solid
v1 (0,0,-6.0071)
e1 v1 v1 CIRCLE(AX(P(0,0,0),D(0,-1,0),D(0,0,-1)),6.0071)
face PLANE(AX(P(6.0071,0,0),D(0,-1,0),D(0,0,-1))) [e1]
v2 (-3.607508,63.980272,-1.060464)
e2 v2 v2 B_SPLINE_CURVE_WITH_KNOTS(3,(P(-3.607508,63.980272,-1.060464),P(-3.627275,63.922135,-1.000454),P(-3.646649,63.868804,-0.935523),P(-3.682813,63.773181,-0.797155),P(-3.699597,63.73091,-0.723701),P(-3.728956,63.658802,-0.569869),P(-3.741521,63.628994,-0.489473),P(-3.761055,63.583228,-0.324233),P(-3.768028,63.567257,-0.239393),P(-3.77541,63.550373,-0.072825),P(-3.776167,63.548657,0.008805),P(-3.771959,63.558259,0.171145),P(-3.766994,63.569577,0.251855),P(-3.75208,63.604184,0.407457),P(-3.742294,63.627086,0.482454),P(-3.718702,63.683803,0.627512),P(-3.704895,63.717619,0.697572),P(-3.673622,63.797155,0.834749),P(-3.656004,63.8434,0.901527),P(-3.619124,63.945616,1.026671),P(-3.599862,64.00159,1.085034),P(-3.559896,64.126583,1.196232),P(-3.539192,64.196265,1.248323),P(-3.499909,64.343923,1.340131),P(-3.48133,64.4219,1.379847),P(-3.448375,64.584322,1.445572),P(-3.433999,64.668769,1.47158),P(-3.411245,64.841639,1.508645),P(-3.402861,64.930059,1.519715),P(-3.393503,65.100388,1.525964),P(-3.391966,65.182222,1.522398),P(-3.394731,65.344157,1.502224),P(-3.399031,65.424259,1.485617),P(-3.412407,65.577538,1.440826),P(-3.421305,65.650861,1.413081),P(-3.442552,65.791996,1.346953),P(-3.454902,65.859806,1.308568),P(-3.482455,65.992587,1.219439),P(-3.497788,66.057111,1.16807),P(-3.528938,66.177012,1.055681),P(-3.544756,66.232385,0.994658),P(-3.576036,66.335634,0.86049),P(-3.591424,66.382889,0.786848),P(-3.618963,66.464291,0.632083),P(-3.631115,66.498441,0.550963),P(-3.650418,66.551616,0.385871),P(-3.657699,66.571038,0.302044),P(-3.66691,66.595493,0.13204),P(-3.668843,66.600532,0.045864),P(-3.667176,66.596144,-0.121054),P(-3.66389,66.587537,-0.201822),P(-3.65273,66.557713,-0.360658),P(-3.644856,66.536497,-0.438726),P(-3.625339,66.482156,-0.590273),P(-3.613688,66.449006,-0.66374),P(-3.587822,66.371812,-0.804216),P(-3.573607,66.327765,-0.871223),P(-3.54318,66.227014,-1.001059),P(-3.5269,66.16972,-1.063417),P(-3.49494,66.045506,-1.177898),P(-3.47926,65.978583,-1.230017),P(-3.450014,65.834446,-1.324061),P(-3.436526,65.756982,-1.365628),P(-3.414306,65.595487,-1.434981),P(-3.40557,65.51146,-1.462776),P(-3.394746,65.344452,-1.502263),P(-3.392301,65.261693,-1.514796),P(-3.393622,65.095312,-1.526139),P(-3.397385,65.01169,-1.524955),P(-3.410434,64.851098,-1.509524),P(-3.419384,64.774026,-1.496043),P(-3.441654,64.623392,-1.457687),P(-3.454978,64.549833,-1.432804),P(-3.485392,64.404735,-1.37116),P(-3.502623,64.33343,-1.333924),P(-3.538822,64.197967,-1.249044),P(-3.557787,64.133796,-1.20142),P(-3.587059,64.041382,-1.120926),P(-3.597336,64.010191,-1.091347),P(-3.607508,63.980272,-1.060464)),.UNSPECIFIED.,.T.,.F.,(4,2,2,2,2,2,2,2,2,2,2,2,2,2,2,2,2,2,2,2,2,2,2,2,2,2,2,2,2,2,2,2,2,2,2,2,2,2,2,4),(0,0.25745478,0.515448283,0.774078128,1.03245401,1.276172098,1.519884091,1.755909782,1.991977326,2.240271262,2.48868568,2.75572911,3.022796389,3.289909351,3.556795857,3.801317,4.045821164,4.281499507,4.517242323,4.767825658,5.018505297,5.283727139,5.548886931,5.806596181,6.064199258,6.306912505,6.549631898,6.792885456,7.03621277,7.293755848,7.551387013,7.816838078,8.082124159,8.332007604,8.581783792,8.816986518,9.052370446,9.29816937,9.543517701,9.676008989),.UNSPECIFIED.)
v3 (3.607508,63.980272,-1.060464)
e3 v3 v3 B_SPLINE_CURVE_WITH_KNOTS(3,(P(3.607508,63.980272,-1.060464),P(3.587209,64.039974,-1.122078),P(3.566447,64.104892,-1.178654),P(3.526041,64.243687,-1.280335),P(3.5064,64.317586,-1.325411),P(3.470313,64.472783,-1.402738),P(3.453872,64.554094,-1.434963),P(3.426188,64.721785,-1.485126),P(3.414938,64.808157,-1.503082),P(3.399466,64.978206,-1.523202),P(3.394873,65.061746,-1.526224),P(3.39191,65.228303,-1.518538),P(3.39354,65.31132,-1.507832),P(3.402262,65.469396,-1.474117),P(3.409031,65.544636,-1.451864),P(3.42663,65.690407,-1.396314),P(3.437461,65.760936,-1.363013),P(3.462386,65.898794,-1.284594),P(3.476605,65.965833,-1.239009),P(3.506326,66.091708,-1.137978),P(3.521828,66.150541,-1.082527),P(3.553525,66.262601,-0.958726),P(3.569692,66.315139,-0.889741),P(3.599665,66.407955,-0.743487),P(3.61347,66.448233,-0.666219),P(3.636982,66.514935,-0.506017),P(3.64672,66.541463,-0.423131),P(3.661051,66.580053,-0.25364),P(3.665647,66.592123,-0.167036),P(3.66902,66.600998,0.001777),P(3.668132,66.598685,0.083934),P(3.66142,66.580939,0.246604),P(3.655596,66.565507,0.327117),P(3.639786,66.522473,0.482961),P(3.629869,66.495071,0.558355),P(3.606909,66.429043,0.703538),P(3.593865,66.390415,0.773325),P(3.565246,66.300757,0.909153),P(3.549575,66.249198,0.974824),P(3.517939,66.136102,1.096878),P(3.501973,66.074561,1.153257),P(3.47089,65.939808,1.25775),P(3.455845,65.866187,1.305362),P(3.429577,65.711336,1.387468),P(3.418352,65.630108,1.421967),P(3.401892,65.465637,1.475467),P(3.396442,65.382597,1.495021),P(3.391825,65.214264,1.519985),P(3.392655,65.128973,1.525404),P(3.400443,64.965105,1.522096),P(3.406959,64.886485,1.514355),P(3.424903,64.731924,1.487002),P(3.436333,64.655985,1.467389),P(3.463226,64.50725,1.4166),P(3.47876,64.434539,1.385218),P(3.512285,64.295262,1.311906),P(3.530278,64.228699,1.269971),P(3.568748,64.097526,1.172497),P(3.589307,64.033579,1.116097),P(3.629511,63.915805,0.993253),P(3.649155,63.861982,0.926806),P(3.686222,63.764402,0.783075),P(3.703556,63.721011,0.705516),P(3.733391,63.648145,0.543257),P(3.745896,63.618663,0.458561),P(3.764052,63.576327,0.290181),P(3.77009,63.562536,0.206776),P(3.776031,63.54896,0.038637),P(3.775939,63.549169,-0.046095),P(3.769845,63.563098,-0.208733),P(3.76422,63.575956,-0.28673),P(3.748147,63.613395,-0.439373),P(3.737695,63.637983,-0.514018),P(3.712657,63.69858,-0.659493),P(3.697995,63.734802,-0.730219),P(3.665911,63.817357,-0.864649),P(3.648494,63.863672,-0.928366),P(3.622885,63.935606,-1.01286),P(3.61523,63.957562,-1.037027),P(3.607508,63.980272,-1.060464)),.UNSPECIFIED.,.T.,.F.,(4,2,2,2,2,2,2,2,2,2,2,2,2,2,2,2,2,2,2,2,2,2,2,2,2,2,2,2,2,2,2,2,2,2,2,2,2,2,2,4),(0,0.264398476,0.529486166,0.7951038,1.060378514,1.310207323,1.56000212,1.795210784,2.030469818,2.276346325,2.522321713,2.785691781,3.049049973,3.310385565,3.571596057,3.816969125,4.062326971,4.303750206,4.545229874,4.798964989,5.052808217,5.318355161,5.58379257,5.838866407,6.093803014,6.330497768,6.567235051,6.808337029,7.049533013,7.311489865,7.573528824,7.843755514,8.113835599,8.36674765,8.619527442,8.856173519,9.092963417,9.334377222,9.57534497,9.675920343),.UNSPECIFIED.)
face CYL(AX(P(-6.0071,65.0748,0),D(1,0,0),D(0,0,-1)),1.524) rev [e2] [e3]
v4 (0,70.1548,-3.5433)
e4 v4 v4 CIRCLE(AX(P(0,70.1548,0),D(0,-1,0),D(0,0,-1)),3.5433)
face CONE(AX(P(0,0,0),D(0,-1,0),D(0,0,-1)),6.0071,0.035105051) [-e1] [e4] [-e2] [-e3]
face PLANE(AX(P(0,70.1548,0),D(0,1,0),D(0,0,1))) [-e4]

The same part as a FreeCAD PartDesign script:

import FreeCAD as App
import Part
import Sketcher
from FreeCAD import Vector
Q = App.Units.Quantity


def add_polygon(sketch, points):
    """Adds a closed chain of lines whose ends are joined by coincident constraints."""
    first, n = sketch.GeometryCount, len(points)
    for a, b in zip(points, points[1:] + points[:1]):
        sketch.addGeometry(Part.LineSegment(App.Vector(*a, 0), App.Vector(*b, 0)), False)
    for i in range(n):
        sketch.addConstraint(Sketcher.Constraint("Coincident", first + i, 2, first + (i + 1) % n, 1))

doc = App.newDocument("Part")
params = doc.addObject("Spreadsheet::Sheet", "Params")
for row, (alias, value) in enumerate([
    ("sketch1_height", "2.762 in"),
    ("revolution_angle", "360 deg"),
    ("sketch2_diameter", "0.12 in"),
], start=1):
    params.set(f"A{row}", alias)
    params.set(f"B{row}", "=" + value)
    params.setAlias(f"B{row}", alias)

body = doc.addObject("PartDesign::Body", "Body")

# Sketch on XY plane
sketch1 = body.newObject("Sketcher::SketchObject", "Sketch")
sketch1.AttachmentSupport = (doc.getObject("XY_Plane"), [""])
sketch1.MapMode = "FlatFace"
add_polygon(sketch1, [(0, 70.2), (0, 0), (6, 0), (3.5, 70.2)])  # lines 0-3
sketch1.addConstraint([
    Sketcher.Constraint("Vertical", 0),
    Sketcher.Constraint("Horizontal", 1),
    Sketcher.Constraint("Horizontal", 3),
    Sketcher.Constraint("Coincident", 0, 2, -1, 1),
    Sketcher.Constraint("DistanceY", 0, 2, 0, 1, Q("2.762 in")),
    Sketcher.Constraint("DistanceX", 1, 1, 1, 2, Q("0.2365 in")),
    Sketcher.Constraint("DistanceX", 3, 2, 3, 1, Q("0.1395 in")),
])
sketch1.setExpression("Constraints[8]", "Params.sketch1_height")
revolution = body.newObject("PartDesign::Revolution", "Revolution")
revolution.Profile = sketch1
revolution.ReferenceAxis = (sketch1, ["V_Axis"])
revolution.setExpression("Angle", "Params.revolution_angle")

# Sketch on YZ plane
sketch2 = body.newObject("Sketcher::SketchObject", "Sketch001")
sketch2.AttachmentSupport = (doc.getObject("YZ_Plane"), [""])
sketch2.MapMode = "FlatFace"
sketch2.addGeometry(Part.Circle(Vector(65.1, 0, 0), Vector(0, 0, 1), 1.5), False)
sketch2.addConstraint([
    Sketcher.Constraint("PointOnObject", 0, 3, -1),
    Sketcher.Constraint("Diameter", 0, Q("0.12 in")),
    Sketcher.Constraint("DistanceX", -1, 1, 0, 3, Q("2.562 in")),
])
sketch2.setExpression("Constraints[1]", "Params.sketch2_diameter")
pocket1 = body.newObject("PartDesign::Pocket", "Pocket")
pocket1.Profile = sketch2
pocket1.Type = "ThroughAll"
pocket1.Midplane = True

doc.recompute()
